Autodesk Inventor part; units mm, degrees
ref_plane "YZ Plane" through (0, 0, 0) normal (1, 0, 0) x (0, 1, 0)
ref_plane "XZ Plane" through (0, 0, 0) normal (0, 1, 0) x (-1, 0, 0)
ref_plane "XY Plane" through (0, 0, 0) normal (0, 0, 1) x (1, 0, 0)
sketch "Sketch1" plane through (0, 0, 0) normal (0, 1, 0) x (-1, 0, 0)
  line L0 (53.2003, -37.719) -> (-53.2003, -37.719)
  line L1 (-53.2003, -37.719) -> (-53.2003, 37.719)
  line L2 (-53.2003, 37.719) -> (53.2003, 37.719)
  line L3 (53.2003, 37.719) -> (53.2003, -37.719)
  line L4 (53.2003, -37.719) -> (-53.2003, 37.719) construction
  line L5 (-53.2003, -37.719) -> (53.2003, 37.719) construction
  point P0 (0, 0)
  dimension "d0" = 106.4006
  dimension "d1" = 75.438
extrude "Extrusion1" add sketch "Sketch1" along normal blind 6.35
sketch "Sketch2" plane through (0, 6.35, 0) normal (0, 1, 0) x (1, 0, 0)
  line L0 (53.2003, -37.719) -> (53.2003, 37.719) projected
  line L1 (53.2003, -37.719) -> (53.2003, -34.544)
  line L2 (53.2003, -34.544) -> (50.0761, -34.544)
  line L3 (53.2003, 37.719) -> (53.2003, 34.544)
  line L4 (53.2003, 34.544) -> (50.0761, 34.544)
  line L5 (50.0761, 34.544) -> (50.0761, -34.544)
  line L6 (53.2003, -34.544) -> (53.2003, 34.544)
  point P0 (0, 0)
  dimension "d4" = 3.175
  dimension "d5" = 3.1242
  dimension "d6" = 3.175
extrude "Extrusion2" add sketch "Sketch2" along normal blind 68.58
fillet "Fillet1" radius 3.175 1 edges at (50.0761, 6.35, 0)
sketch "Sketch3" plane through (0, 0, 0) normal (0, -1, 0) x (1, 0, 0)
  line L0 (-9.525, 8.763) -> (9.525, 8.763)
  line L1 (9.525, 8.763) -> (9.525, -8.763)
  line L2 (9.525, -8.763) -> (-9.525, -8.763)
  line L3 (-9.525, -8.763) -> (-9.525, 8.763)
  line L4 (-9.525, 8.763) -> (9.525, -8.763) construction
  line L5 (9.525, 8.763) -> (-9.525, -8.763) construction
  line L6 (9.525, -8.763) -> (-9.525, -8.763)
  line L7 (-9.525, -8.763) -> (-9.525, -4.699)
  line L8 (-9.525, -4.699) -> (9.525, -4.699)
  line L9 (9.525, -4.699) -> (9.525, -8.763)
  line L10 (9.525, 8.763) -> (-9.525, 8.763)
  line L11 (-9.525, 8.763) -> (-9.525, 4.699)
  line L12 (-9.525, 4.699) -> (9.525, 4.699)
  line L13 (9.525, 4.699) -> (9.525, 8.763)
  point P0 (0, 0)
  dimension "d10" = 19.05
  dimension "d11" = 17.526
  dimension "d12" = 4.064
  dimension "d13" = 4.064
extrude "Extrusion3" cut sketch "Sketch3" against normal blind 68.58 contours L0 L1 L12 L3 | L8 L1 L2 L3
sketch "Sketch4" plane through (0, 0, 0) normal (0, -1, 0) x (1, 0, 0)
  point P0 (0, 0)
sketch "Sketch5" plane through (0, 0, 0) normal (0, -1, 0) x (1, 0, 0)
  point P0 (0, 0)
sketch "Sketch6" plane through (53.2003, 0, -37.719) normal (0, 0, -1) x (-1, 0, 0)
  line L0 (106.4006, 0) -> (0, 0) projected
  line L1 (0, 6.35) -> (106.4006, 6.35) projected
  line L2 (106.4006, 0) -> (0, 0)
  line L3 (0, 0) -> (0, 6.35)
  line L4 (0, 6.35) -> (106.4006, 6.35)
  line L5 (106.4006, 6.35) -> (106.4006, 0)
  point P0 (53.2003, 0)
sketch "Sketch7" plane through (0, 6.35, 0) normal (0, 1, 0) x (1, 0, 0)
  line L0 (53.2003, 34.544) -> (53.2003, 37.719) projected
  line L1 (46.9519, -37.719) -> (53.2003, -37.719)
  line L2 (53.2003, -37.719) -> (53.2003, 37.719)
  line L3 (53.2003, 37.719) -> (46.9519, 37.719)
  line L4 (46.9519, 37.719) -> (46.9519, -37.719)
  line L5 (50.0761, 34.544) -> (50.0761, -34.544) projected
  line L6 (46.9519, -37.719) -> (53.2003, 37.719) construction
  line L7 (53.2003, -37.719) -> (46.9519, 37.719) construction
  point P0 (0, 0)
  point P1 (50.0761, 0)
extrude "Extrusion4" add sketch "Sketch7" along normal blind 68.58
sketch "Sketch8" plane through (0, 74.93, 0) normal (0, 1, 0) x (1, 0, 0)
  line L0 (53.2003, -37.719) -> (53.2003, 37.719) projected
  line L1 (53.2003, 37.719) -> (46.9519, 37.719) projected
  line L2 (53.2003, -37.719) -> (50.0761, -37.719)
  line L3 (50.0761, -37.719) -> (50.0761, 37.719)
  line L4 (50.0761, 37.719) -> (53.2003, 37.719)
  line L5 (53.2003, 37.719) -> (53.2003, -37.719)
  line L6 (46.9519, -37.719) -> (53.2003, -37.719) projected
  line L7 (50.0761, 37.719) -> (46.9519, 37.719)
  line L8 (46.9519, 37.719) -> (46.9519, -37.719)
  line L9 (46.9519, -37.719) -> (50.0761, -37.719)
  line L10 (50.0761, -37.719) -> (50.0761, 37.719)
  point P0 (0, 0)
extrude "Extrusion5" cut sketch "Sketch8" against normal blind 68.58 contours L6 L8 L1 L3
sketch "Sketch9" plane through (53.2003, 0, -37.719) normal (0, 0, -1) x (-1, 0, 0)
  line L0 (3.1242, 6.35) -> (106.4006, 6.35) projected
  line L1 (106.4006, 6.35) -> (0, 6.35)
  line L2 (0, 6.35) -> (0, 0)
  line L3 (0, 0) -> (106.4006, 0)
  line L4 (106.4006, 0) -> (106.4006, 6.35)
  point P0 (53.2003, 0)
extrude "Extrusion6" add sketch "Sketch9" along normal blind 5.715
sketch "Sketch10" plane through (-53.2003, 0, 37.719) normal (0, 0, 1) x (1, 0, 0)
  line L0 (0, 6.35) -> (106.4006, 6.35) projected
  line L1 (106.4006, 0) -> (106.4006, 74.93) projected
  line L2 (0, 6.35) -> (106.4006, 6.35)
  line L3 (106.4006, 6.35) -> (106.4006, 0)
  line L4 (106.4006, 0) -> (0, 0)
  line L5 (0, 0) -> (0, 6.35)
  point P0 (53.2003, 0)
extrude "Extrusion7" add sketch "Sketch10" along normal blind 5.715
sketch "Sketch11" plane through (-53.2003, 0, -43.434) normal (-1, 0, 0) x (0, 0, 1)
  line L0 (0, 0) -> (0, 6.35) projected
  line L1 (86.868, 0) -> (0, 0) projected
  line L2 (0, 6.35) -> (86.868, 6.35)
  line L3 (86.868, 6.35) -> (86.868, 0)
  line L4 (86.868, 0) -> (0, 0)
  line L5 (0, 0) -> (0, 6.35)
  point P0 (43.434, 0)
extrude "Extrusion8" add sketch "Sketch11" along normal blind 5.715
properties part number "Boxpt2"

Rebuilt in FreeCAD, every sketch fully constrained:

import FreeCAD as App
import Part
import Sketcher

V = App.Vector
Q = App.Units.Quantity


def edges_at(feature, points):
    """Names of the edges that pass closest to the given points."""
    edges = feature.Shape.Edges
    near = lambda p: min(range(len(edges)), key=lambda i: edges[i].distToShape(Part.Vertex(*p))[0])
    return sorted({f"Edge{near(p) + 1}" for p in points})


def add_polygon(sketch, points):
    """Adds a closed chain of lines whose ends are joined by coincident constraints."""
    first, n = sketch.GeometryCount, len(points)
    for a, b in zip(points, points[1:] + points[:1]):
        sketch.addGeometry(Part.LineSegment(App.Vector(*a, 0), App.Vector(*b, 0)), False)
    for i in range(n):
        sketch.addConstraint(Sketcher.Constraint("Coincident", first + i, 2, first + (i + 1) % n, 1))

doc = App.newDocument("Part")
params = doc.addObject("Spreadsheet::Sheet", "Params")
for row, (alias, value) in enumerate([
    ("sketch1_height", "2.97 in"),
    ("sketch1_width", "4.189 in"),
    ("pad1_length", "0.25 in"),
    ("sketch2_width", "0.123 in"),
    ("sketch2_height", "2.72 in"),
    ("pad2_length", "2.7 in"),
    ("fillet_radius", "0.125 in"),
    ("sketch3_width", "0.75 in"),
    ("sketch3_height", "0.16 in"),
    ("pocket1_length", "2.7 in"),
    ("sketch4_height", "2.97 in"),
    ("sketch4_width", "0.246 in"),
    ("pad3_length", "2.7 in"),
    ("sketch5_height", "2.97 in"),
    ("sketch5_width", "0.123 in"),
    ("pocket2_length", "2.7 in"),
    ("sketch6_height", "0.25 in"),
    ("sketch6_width", "4.189 in"),
    ("pad4_length", "0.225 in"),
    ("sketch7_height", "0.25 in"),
    ("sketch7_width", "4.189 in"),
    ("pad5_length", "0.225 in"),
    ("sketch8_width", "0.25 in"),
    ("sketch8_height", "3.42 in"),
    ("pad6_length", "0.225 in"),
], start=1):
    params.set(f"A{row}", alias)
    params.set(f"B{row}", "=" + value)
    params.setAlias(f"B{row}", alias)

body = doc.addObject("PartDesign::Body", "Body")

sketch1 = doc.addObject("Sketcher::SketchObject", "Sketch")
body.addObject(sketch1)
sketch1.AttachmentSupport = (doc.XZ_Plane, [""])
sketch1.MapMode = "FlatFace"
add_polygon(sketch1, [(53.2003, -37.719), (-53.2003, -37.719), (-53.2003, 37.719), (53.2003, 37.719)])
sketch1.addConstraint([
    Sketcher.Constraint("Horizontal", 0),
    Sketcher.Constraint("Vertical", 1),
    Sketcher.Constraint("Horizontal", 2),
    Sketcher.Constraint("Vertical", 3),
    Sketcher.Constraint("Symmetric", 0, 2, 2, 2, -1, 1),
    Sketcher.Constraint("DistanceY", 1, 1, 1, 2, Q("2.97 in")),
    Sketcher.Constraint("DistanceX", 0, 2, 0, 1, Q("4.189 in")),
])
sketch1.setExpression("Constraints[9]", "Params.sketch1_height")
sketch1.setExpression("Constraints[10]", "Params.sketch1_width")
pad1 = doc.addObject("PartDesign::Pad", "Pad")
body.addObject(pad1)
pad1.Profile = sketch1
pad1.setExpression("Length", "Params.pad1_length")
pad1.Reversed = True

sketch2 = doc.addObject("Sketcher::SketchObject", "Sketch001")
body.addObject(sketch2)
sketch2.AttachmentSupport = (doc.XZ_Plane, [""])
sketch2.MapMode = "FlatFace"
sketch2.AttachmentOffset = App.Placement(V(0, 0, -0.25 * 25.4), App.Rotation())
add_polygon(sketch2, [(50.0761, 34.544), (53.2003, 34.544), (53.2003, -34.544), (50.0761, -34.544)])
sketch2.addConstraint([
    Sketcher.Constraint("Horizontal", 0),
    Sketcher.Constraint("Vertical", 1),
    Sketcher.Constraint("Horizontal", 2),
    Sketcher.Constraint("Vertical", 3),
    Sketcher.Constraint("DistanceX", 0, 1, 0, 2, Q("0.123 in")),
    Sketcher.Constraint("DistanceY", 1, 2, 1, 1, Q("2.72 in")),
    Sketcher.Constraint("DistanceY", -1, 1, 0, 2, Q("1.36 in")),
    Sketcher.Constraint("DistanceX", -1, 1, 0, 2, Q("2.0945 in")),
])
sketch2.setExpression("Constraints[8]", "Params.sketch2_width")
sketch2.setExpression("Constraints[9]", "Params.sketch2_height")
pad2 = doc.addObject("PartDesign::Pad", "Pad001")
body.addObject(pad2)
pad2.Profile = sketch2
pad2.setExpression("Length", "Params.pad2_length")
pad2.Reversed = True
doc.recompute()

fillet = doc.addObject("PartDesign::Fillet", "Fillet")
body.addObject(fillet)
fillet.Base = (pad2, edges_at(pad2, [(50.076, 6.35, 0)]))
fillet.setExpression("Radius", "Params.fillet_radius")

sketch3 = doc.addObject("Sketcher::SketchObject", "Sketch002")
body.addObject(sketch3)
sketch3.AttachmentSupport = (doc.XZ_Plane, [""])
sketch3.MapMode = "FlatFace"
add_polygon(sketch3, [(9.525, 8.763), (-9.525, 8.763), (-9.525, 4.699), (9.525, 4.699)])
add_polygon(sketch3, [(9.525, -4.699), (-9.525, -4.699), (-9.525, -8.763), (9.525, -8.763)])
sketch3.addConstraint([
    Sketcher.Constraint("Horizontal", 0),
    Sketcher.Constraint("Vertical", 1),
    Sketcher.Constraint("Horizontal", 2),
    Sketcher.Constraint("Vertical", 3),
    Sketcher.Constraint("Horizontal", 4),
    Sketcher.Constraint("Vertical", 5),
    Sketcher.Constraint("Horizontal", 6),
    Sketcher.Constraint("Vertical", 7),
    Sketcher.Constraint("Symmetric", 2, 2, 4, 2, -1, 1),
    Sketcher.Constraint("Symmetric", 0, 2, 6, 2, -1, 1),
    Sketcher.Constraint("Vertical", 1, 2, 4, 2),
    Sketcher.Constraint("DistanceX", 0, 2, 0, 1, Q("0.75 in")),
    Sketcher.Constraint("DistanceY", 1, 2, 1, 1, Q("0.16 in")),
    Sketcher.Constraint("DistanceY", 5, 2, 0, 2, Q("0.69 in")),
])
sketch3.setExpression("Constraints[19]", "Params.sketch3_width")
sketch3.setExpression("Constraints[20]", "Params.sketch3_height")
pocket1 = doc.addObject("PartDesign::Pocket", "Pocket")
body.addObject(pocket1)
pocket1.Profile = sketch3
pocket1.setExpression("Length", "Params.pocket1_length")

sketch4 = doc.addObject("Sketcher::SketchObject", "Sketch003")
body.addObject(sketch4)
sketch4.AttachmentSupport = (doc.XZ_Plane, [""])
sketch4.MapMode = "FlatFace"
sketch4.AttachmentOffset = App.Placement(V(0, 0, -0.25 * 25.4), App.Rotation())
add_polygon(sketch4, [(53.2003, 37.719), (53.2003, -37.719), (46.9519, -37.719), (46.9519, 37.719)])
sketch4.addConstraint([
    Sketcher.Constraint("Vertical", 0),
    Sketcher.Constraint("Horizontal", 1),
    Sketcher.Constraint("Vertical", 2),
    Sketcher.Constraint("Horizontal", 3),
    Sketcher.Constraint("DistanceY", 0, 2, 0, 1, Q("2.97 in")),
    Sketcher.Constraint("DistanceX", 1, 2, 1, 1, Q("0.246 in")),
    Sketcher.Constraint("DistanceY", 0, 2, -1, 1, Q("1.485 in")),
    Sketcher.Constraint("DistanceX", -1, 1, 0, 2, Q("2.0945 in")),
])
sketch4.setExpression("Constraints[8]", "Params.sketch4_height")
sketch4.setExpression("Constraints[9]", "Params.sketch4_width")
pad3 = doc.addObject("PartDesign::Pad", "Pad002")
body.addObject(pad3)
pad3.Profile = sketch4
pad3.setExpression("Length", "Params.pad3_length")
pad3.Reversed = True

sketch5 = doc.addObject("Sketcher::SketchObject", "Sketch004")
body.addObject(sketch5)
sketch5.AttachmentSupport = (doc.XZ_Plane, [""])
sketch5.MapMode = "FlatFace"
sketch5.AttachmentOffset = App.Placement(V(0, 0, -2.95 * 25.4), App.Rotation())
add_polygon(sketch5, [(46.9519, 37.719), (50.0761, 37.719), (50.0761, -37.719), (46.9519, -37.719)])
sketch5.addConstraint([
    Sketcher.Constraint("Horizontal", 0),
    Sketcher.Constraint("Vertical", 1),
    Sketcher.Constraint("Horizontal", 2),
    Sketcher.Constraint("Vertical", 3),
    Sketcher.Constraint("DistanceY", 1, 2, 1, 1, Q("2.97 in")),
    Sketcher.Constraint("DistanceX", 0, 1, 0, 2, Q("0.123 in")),
    Sketcher.Constraint("DistanceY", -1, 1, 0, 2, Q("1.485 in")),
    Sketcher.Constraint("DistanceX", -1, 1, 0, 2, Q("1.9715 in")),
])
sketch5.setExpression("Constraints[8]", "Params.sketch5_height")
sketch5.setExpression("Constraints[9]", "Params.sketch5_width")
pocket2 = doc.addObject("PartDesign::Pocket", "Pocket001")
body.addObject(pocket2)
pocket2.Profile = sketch5
pocket2.setExpression("Length", "Params.pocket2_length")
pocket2.Reversed = True

sketch6 = doc.addObject("Sketcher::SketchObject", "Sketch005")
body.addObject(sketch6)
sketch6.AttachmentSupport = (doc.XY_Plane, [""])
sketch6.MapMode = "FlatFace"
sketch6.AttachmentOffset = App.Placement(V(0, 0, -1.485 * 25.4), App.Rotation())
add_polygon(sketch6, [(-53.2003, 6.35), (53.2003, 6.35), (53.2003, 0), (-53.2003, 0)])
sketch6.addConstraint([
    Sketcher.Constraint("Horizontal", 0),
    Sketcher.Constraint("Vertical", 1),
    Sketcher.Constraint("Horizontal", 2),
    Sketcher.Constraint("Vertical", 3),
    Sketcher.Constraint("Symmetric", 1, 2, 2, 2, -1, 1),
    Sketcher.Constraint("DistanceY", 1, 2, 1, 1, Q("0.25 in")),
    Sketcher.Constraint("DistanceX", 0, 1, 0, 2, Q("4.189 in")),
])
sketch6.setExpression("Constraints[9]", "Params.sketch6_height")
sketch6.setExpression("Constraints[10]", "Params.sketch6_width")
pad4 = doc.addObject("PartDesign::Pad", "Pad003")
body.addObject(pad4)
pad4.Profile = sketch6
pad4.setExpression("Length", "Params.pad4_length")
pad4.Reversed = True

sketch7 = doc.addObject("Sketcher::SketchObject", "Sketch006")
body.addObject(sketch7)
sketch7.AttachmentSupport = (doc.XY_Plane, [""])
sketch7.MapMode = "FlatFace"
sketch7.AttachmentOffset = App.Placement(V(0, 0, 1.485 * 25.4), App.Rotation())
add_polygon(sketch7, [(53.2003, 6.35), (-53.2003, 6.35), (-53.2003, 0), (53.2003, 0)])
sketch7.addConstraint([
    Sketcher.Constraint("Horizontal", 0),
    Sketcher.Constraint("Vertical", 1),
    Sketcher.Constraint("Horizontal", 2),
    Sketcher.Constraint("Vertical", 3),
    Sketcher.Constraint("Symmetric", 1, 2, 2, 2, -1, 1),
    Sketcher.Constraint("DistanceY", 1, 2, 1, 1, Q("0.25 in")),
    Sketcher.Constraint("DistanceX", 0, 2, 0, 1, Q("4.189 in")),
])
sketch7.setExpression("Constraints[9]", "Params.sketch7_height")
sketch7.setExpression("Constraints[10]", "Params.sketch7_width")
pad5 = doc.addObject("PartDesign::Pad", "Pad004")
body.addObject(pad5)
pad5.Profile = sketch7
pad5.setExpression("Length", "Params.pad5_length")

sketch8 = doc.addObject("Sketcher::SketchObject", "Sketch007")
body.addObject(sketch8)
sketch8.AttachmentSupport = (doc.YZ_Plane, [""])
sketch8.MapMode = "FlatFace"
sketch8.AttachmentOffset = App.Placement(V(0, 0, -2.0945 * 25.4), App.Rotation())
add_polygon(sketch8, [(6.35, -43.434), (0, -43.434), (0, 43.434), (6.35, 43.434)])
sketch8.addConstraint([
    Sketcher.Constraint("Horizontal", 0),
    Sketcher.Constraint("Vertical", 1),
    Sketcher.Constraint("Horizontal", 2),
    Sketcher.Constraint("Vertical", 3),
    Sketcher.Constraint("Symmetric", 0, 2, 1, 2, -1, 1),
    Sketcher.Constraint("DistanceX", 0, 2, 0, 1, Q("0.25 in")),
    Sketcher.Constraint("DistanceY", 1, 1, 1, 2, Q("3.42 in")),
])
sketch8.setExpression("Constraints[9]", "Params.sketch8_width")
sketch8.setExpression("Constraints[10]", "Params.sketch8_height")
pad6 = doc.addObject("PartDesign::Pad", "Pad005")
body.addObject(pad6)
pad6.Profile = sketch8
pad6.setExpression("Length", "Params.pad6_length")
pad6.Reversed = True

doc.recompute()
